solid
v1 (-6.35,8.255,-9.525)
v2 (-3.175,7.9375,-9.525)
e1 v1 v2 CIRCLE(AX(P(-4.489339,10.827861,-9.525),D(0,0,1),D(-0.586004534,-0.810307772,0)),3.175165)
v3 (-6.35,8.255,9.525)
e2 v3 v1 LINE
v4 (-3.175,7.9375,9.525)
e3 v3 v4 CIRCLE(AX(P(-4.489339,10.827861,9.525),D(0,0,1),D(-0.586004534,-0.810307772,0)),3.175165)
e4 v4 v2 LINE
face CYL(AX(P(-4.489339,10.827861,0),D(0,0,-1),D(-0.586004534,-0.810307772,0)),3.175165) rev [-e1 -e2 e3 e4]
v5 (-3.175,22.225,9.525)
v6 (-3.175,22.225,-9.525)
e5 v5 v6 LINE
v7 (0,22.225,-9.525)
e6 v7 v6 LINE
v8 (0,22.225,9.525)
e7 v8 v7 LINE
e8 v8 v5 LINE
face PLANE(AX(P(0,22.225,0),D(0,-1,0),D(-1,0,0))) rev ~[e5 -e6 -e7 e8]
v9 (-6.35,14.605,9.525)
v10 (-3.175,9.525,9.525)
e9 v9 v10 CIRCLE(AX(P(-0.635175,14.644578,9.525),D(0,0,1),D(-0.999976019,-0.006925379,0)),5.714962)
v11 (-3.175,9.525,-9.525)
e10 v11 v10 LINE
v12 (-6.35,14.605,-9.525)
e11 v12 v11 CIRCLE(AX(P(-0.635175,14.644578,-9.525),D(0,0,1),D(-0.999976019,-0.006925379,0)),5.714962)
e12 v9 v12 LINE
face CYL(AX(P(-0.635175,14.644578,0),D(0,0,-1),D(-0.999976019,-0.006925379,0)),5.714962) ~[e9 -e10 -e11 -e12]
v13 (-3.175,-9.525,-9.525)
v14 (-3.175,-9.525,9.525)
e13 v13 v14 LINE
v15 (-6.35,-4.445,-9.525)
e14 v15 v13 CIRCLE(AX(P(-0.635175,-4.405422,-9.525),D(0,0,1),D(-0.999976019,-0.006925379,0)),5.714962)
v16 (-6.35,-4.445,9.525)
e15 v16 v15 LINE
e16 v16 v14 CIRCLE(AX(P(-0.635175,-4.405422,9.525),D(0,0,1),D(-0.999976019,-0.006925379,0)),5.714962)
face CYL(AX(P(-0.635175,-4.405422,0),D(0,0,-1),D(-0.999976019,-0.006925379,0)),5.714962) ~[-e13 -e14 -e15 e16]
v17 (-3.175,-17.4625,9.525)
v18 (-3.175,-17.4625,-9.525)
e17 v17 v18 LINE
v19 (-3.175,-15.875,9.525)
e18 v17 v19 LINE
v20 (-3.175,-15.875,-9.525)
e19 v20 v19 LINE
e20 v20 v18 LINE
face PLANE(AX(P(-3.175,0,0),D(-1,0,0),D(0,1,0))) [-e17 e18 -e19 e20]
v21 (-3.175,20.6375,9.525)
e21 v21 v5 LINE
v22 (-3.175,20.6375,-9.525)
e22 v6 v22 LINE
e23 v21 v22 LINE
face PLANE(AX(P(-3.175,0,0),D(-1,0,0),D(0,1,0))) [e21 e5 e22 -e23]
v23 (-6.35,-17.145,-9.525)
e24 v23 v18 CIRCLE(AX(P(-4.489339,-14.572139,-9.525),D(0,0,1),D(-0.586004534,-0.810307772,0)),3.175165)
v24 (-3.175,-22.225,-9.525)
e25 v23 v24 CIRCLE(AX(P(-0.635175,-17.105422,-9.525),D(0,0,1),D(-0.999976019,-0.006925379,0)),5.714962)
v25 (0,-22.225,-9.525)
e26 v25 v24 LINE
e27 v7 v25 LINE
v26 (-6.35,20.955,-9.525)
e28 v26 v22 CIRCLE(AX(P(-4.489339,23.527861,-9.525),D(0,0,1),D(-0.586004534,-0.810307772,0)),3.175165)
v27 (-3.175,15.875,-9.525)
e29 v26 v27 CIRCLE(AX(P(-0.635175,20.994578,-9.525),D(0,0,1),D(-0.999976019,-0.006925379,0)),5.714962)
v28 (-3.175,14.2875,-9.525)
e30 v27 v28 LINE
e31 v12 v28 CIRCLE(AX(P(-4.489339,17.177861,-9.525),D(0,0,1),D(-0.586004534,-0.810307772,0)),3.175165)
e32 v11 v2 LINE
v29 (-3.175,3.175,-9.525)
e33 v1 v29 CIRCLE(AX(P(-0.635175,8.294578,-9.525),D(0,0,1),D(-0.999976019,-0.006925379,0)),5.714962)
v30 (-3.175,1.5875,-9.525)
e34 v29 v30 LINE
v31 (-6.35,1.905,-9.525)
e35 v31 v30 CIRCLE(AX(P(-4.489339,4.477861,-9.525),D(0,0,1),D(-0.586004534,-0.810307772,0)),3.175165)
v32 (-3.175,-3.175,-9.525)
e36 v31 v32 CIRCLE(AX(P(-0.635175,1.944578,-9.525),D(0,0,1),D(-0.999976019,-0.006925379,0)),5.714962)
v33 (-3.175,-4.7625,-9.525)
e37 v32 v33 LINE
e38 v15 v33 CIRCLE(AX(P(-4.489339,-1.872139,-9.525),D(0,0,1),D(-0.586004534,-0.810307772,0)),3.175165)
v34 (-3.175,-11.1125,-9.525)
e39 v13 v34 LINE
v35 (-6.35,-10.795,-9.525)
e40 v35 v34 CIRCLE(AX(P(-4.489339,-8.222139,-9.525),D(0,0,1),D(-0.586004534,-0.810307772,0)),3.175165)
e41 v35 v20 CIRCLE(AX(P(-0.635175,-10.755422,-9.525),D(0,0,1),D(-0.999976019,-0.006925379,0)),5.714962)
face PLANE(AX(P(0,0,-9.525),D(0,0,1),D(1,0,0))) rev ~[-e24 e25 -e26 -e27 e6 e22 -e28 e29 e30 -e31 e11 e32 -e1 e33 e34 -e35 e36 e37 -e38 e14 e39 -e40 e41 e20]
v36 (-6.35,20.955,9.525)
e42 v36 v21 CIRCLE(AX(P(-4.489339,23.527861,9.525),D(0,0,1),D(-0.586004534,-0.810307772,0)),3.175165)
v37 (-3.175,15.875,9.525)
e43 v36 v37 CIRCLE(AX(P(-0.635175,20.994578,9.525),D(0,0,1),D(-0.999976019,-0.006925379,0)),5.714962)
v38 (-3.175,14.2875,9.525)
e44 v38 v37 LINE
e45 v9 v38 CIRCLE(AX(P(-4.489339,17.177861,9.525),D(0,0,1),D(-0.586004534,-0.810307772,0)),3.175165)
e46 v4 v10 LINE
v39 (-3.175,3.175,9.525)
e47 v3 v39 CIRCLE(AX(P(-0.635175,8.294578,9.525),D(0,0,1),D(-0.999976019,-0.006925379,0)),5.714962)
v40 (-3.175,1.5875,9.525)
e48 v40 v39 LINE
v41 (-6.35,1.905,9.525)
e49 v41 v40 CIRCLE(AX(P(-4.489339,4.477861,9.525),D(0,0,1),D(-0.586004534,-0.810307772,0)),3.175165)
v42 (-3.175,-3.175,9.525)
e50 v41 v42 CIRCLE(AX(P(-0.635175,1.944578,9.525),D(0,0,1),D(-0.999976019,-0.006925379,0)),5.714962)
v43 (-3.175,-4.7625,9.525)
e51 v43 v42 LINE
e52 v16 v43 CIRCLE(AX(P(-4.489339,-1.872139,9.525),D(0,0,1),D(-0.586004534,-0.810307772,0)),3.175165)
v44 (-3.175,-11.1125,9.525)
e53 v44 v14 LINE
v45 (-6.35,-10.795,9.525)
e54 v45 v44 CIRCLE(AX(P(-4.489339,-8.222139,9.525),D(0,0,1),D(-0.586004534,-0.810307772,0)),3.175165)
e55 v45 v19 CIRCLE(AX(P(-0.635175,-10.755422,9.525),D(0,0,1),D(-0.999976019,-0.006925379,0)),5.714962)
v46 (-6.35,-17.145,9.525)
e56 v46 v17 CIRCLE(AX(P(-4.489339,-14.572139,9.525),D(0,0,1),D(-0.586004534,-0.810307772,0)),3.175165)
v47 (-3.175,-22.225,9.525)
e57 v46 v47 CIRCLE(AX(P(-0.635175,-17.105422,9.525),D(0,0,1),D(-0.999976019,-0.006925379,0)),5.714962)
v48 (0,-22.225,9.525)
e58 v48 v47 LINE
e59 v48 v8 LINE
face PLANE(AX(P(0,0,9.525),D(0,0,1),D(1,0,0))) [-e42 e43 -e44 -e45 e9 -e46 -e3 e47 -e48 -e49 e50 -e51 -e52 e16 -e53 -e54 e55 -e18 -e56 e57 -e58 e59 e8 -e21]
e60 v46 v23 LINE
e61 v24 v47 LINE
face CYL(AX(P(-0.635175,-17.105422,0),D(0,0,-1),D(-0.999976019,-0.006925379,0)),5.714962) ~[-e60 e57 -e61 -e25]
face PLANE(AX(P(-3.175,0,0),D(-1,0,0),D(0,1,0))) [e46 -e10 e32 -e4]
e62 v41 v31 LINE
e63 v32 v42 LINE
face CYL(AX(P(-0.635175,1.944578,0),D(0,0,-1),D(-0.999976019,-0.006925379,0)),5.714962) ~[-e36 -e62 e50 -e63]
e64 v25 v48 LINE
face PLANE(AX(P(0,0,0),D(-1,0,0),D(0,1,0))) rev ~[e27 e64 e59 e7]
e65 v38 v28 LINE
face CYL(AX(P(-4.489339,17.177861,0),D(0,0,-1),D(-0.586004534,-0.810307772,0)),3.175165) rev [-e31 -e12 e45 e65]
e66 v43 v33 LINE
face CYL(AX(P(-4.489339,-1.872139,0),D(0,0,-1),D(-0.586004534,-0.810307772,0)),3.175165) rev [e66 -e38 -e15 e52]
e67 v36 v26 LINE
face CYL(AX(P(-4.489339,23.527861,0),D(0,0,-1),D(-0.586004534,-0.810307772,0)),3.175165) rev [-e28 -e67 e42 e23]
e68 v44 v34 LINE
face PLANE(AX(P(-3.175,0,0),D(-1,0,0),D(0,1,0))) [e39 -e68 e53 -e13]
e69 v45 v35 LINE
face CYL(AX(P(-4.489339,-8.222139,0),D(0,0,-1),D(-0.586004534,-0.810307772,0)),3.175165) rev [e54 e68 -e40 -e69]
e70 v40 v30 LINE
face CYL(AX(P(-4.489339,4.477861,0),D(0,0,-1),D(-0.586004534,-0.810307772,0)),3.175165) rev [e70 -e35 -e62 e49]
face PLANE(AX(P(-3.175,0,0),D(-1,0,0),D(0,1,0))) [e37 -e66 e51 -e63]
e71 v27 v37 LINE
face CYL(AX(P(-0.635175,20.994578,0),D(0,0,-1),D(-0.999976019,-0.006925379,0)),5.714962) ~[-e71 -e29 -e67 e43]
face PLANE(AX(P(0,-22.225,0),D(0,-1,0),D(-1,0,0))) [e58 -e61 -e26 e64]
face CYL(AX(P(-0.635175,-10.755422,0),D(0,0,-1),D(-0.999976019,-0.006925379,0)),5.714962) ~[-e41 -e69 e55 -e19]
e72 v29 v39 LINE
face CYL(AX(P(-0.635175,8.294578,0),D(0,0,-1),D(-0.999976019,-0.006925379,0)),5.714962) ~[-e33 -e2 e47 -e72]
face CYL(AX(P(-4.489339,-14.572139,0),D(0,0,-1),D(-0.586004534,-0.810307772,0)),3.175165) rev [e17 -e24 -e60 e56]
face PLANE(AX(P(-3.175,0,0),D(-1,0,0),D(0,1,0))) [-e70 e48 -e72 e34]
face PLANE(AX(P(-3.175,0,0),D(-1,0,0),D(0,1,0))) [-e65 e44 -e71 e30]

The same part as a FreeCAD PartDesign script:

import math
import FreeCAD as App
import Part
import Sketcher
from FreeCAD import Vector
Q = App.Units.Quantity


def add_polygon(sketch, points):
    """Adds a closed chain of lines whose ends are joined by coincident constraints."""
    first, n = sketch.GeometryCount, len(points)
    for a, b in zip(points, points[1:] + points[:1]):
        sketch.addGeometry(Part.LineSegment(App.Vector(*a, 0), App.Vector(*b, 0)), False)
    for i in range(n):
        sketch.addConstraint(Sketcher.Constraint("Coincident", first + i, 2, first + (i + 1) % n, 1))

doc = App.newDocument("Part")
body = doc.addObject("PartDesign::Body", "Body")

sketch1 = body.newObject("Sketcher::SketchObject", "Sketch")
sketch1.AttachmentSupport = (doc.getObject("XY_Plane"), [""])
sketch1.MapMode = "FlatFace"
add_polygon(sketch1, [(-3.2, 22.2), (-3.2, -22.2), (0, -22.2), (0, 22.2)])
sketch1.addConstraint([
    Sketcher.Constraint("Vertical", 0),
    Sketcher.Constraint("Horizontal", 1),
    Sketcher.Constraint("Vertical", 2),
    Sketcher.Constraint("Horizontal", 3),
    Sketcher.Constraint("Symmetric", 1, 2, 2, 2, -1, 1),
    Sketcher.Constraint("DistanceY", 0, 2, 0, 1, Q("1.75 in")),
    Sketcher.Constraint("DistanceX", 1, 1, 1, 2, Q("0.125 in")),
])
pad1 = body.newObject("PartDesign::Pad", "Pad")
pad1.Profile = sketch1
pad1.Length = Q("0.75 in")
pad1.Midplane = True

sketch2 = body.newObject("Sketcher::SketchObject", "Sketch001")
sketch2.AttachmentSupport = (doc.getObject("XY_Plane"), [""])
sketch2.MapMode = "FlatFace"
sketch2.addGeometry([
    Part.ArcOfCircle(Part.Circle(Vector(-0.6, -17.1, 0), Vector(0, 0, 1), 5.7), math.radians(-180), math.radians(-116)),
    Part.LineSegment(Vector(-3.2, -22.2, 0), Vector(-3.2, -17.5, 0)),
    Part.ArcOfCircle(Part.Circle(Vector(-4.5, -14.6, 0), Vector(0, 0, 1), 3.2), math.radians(-126), math.radians(-66)),
], False)
sketch2.addConstraint([
    Sketcher.Constraint("Coincident", 0, 2, 1, 1),
    Sketcher.Constraint("Coincident", 1, 2, 2, 2),
    Sketcher.Constraint("Coincident", 2, 1, 0, 1),
    Sketcher.Constraint("Vertical", 1),
    Sketcher.Constraint("Radius", 0, Q("0.225 in")),
    Sketcher.Constraint("Radius", 2, Q("0.125 in")),
    Sketcher.Constraint("DistanceY", 0, 2, 2, 1, Q("0.2 in")),
    Sketcher.Constraint("DistanceX", 0, 2, -1, 1, Q("0.125 in")),
    Sketcher.Constraint("DistanceX", 2, 1, 1, 2, Q("0.125 in")),
    Sketcher.Constraint("DistanceY", 1, 2, 2, 1, Q("0.0125 in")),
    Sketcher.Constraint("DistanceY", 0, 2, -1, 1, Q("0.875 in")),
])
pad2 = body.newObject("PartDesign::Pad", "Pad001")
pad2.Profile = sketch2
pad2.Length = Q("0.75 in")
pad2.Midplane = True
doc.recompute()

linearpattern = body.newObject("PartDesign::LinearPattern", "LinearPattern")
linearpattern.Originals = [pad2]
linearpattern.Direction = (doc.getObject("Y_Axis"), [""])
linearpattern.Mode = "offset"
linearpattern.Offset = Q("0.25 in")
linearpattern.Occurrences = 7
body.Tip = linearpattern

doc.recompute()
